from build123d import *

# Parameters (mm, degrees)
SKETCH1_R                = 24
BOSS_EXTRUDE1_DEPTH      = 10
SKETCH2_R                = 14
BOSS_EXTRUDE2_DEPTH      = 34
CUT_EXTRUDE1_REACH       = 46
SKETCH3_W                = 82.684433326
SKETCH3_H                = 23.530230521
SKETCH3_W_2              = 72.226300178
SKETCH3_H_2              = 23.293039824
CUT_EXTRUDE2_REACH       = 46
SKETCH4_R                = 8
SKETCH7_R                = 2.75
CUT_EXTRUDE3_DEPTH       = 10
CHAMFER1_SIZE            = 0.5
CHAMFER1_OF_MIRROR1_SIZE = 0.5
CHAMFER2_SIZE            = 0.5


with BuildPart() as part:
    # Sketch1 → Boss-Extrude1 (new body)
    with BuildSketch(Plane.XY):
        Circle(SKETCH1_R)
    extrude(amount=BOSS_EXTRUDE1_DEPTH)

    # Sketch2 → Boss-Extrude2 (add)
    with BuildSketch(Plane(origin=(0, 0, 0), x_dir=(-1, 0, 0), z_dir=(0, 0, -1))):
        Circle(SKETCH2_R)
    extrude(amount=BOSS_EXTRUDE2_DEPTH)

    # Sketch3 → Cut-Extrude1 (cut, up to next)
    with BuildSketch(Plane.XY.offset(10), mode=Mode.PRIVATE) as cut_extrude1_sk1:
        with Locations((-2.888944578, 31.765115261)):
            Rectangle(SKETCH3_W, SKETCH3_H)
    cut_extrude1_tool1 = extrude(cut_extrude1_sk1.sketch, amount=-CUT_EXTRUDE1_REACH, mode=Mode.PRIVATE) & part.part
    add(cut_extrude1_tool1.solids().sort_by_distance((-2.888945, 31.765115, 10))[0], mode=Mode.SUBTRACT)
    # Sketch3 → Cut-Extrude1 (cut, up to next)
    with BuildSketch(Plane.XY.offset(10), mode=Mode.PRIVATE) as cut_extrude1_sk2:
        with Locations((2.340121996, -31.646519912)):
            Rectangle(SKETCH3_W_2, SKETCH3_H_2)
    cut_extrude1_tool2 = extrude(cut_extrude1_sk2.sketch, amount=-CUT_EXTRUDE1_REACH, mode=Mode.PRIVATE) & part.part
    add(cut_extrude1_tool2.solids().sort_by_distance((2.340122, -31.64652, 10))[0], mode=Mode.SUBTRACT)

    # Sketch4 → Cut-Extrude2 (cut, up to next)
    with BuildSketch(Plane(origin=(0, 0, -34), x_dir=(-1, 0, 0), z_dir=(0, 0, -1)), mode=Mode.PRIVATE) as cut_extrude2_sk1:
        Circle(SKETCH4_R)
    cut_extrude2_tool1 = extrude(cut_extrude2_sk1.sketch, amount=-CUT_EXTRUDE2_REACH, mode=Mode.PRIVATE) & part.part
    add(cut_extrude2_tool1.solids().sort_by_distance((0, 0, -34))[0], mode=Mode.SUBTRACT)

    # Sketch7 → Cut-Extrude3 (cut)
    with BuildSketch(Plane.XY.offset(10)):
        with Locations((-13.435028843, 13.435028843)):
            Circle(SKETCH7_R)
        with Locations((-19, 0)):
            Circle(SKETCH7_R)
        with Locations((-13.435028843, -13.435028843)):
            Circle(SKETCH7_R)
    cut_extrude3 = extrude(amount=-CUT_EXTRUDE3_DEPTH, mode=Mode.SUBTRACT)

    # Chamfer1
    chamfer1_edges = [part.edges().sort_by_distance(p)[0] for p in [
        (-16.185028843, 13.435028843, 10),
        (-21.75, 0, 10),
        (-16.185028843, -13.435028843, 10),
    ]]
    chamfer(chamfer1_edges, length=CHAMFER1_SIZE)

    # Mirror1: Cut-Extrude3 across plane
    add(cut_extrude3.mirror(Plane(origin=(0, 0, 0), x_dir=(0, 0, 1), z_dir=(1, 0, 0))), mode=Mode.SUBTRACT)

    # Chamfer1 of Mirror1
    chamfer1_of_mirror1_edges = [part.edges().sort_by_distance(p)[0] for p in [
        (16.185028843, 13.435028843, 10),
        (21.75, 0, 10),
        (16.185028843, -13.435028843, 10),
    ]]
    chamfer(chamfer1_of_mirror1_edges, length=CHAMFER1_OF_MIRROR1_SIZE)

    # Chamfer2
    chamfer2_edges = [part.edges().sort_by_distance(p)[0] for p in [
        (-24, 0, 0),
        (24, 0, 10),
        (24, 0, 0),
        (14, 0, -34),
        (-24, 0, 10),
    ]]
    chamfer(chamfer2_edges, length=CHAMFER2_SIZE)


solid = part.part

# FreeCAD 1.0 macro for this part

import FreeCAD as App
import Part
import Sketcher


def edges_at(feature, points):
    """Names of the edges that pass closest to the given points."""
    edges = feature.Shape.Edges
    near = lambda p: min(range(len(edges)), key=lambda i: edges[i].distToShape(Part.Vertex(*p))[0])
    return sorted({f"Edge{near(p) + 1}" for p in points})


def add_polygon(sketch, points):
    """Adds a closed chain of lines whose ends are joined by coincident constraints."""
    first, n = sketch.GeometryCount, len(points)
    for a, b in zip(points, points[1:] + points[:1]):
        sketch.addGeometry(Part.LineSegment(App.Vector(*a, 0), App.Vector(*b, 0)), False)
    for i in range(n):
        sketch.addConstraint(Sketcher.Constraint("Coincident", first + i, 2, first + (i + 1) % n, 1))

doc = App.newDocument("Part")
body = doc.addObject("PartDesign::Body", "Body")

sketch1 = body.newObject("Sketcher::SketchObject", "Sketch")
sketch1.AttachmentSupport = (doc.getObject("XY_Plane"), [""])
sketch1.MapMode = "FlatFace"
sketch1.addGeometry(Part.Circle(App.Vector(0, 0, 0), App.Vector(0, 0, 1), 24), False)
sketch1.addConstraint([
    Sketcher.Constraint("Coincident", 0, 3, -1, 1),
    Sketcher.Constraint("Diameter", 0, 48.0),
])
pad1 = body.newObject("PartDesign::Pad", "Pad")
pad1.Profile = sketch1
pad1.Length = 10

sketch2 = body.newObject("Sketcher::SketchObject", "Sketch001")
sketch2.AttachmentSupport = (doc.getObject("XY_Plane"), [""])
sketch2.MapMode = "FlatFace"
sketch2.addGeometry(Part.Circle(App.Vector(0, 0, 0), App.Vector(0, 0, 1), 14), False)
sketch2.addConstraint([
    Sketcher.Constraint("Coincident", 0, 3, -1, 1),
    Sketcher.Constraint("Diameter", 0, 28.0),
])
pad2 = body.newObject("PartDesign::Pad", "Pad001")
pad2.Profile = sketch2
pad2.Length = 34
pad2.Reversed = True

sketch3 = body.newObject("Sketcher::SketchObject", "Sketch002")
sketch3.AttachmentSupport = (doc.getObject("XY_Plane"), [""])
sketch3.MapMode = "FlatFace"
sketch3.AttachmentOffset = App.Placement(App.Vector(0, 0, 10), App.Rotation())
add_polygon(sketch3, [(-44, 44), (-44, 20), (38, 20), (38, 44)])
sketch3.addConstraint([
    Sketcher.Constraint("Vertical", 0),
    Sketcher.Constraint("Horizontal", 1),
    Sketcher.Constraint("Vertical", 2),
    Sketcher.Constraint("Horizontal", 3),
    Sketcher.Constraint("DistanceY", -1, 1, 0, 2, 20.0),
    Sketcher.Constraint("DistanceY", 0, 2, 0, 1, 23.530231),
    Sketcher.Constraint("DistanceX", 1, 1, 1, 2, 82.684433),
    Sketcher.Constraint("DistanceX", 0, 2, -1, 1, 44.231161),
])
pocket1 = body.newObject("PartDesign::Pocket", "Pocket")
pocket1.Profile = sketch3
pocket1.Length = 10

sketch4 = body.newObject("Sketcher::SketchObject", "Sketch003")
sketch4.AttachmentSupport = (doc.getObject("XY_Plane"), [""])
sketch4.MapMode = "FlatFace"
sketch4.AttachmentOffset = App.Placement(App.Vector(0, 0, 10), App.Rotation())
add_polygon(sketch4, [(-34, -20), (-34, -43), (38, -43), (38, -20)])
sketch4.addConstraint([
    Sketcher.Constraint("Vertical", 0),
    Sketcher.Constraint("Horizontal", 1),
    Sketcher.Constraint("Vertical", 2),
    Sketcher.Constraint("Horizontal", 3),
    Sketcher.Constraint("DistanceY", 2, 2, -1, 1, 20.0),
    Sketcher.Constraint("DistanceX", 1, 1, 1, 2, 72.2263),
    Sketcher.Constraint("DistanceY", 0, 2, 0, 1, 23.29304),
    Sketcher.Constraint("DistanceX", 0, 2, -1, 1, 33.773028),
])
pocket2 = body.newObject("PartDesign::Pocket", "Pocket001")
pocket2.Profile = sketch4
pocket2.Length = 10

sketch5 = body.newObject("Sketcher::SketchObject", "Sketch004")
sketch5.AttachmentSupport = (doc.getObject("XY_Plane"), [""])
sketch5.MapMode = "FlatFace"
sketch5.AttachmentOffset = App.Placement(App.Vector(0, 0, -34), App.Rotation())
sketch5.addGeometry(Part.Circle(App.Vector(0, 0, 0), App.Vector(0, 0, 1), 8), False)
sketch5.addConstraint([
    Sketcher.Constraint("Coincident", 0, 3, -1, 1),
    Sketcher.Constraint("Diameter", 0, 16.0),
])
pocket3 = body.newObject("PartDesign::Pocket", "Pocket002")
pocket3.Profile = sketch5
pocket3.Type = "UpToFirst"
pocket3.Reversed = True

sketch6 = body.newObject("Sketcher::SketchObject", "Sketch005")
sketch6.AttachmentSupport = (doc.getObject("XY_Plane"), [""])
sketch6.MapMode = "FlatFace"
sketch6.AttachmentOffset = App.Placement(App.Vector(0, 0, 10), App.Rotation())
sketch6.addGeometry([
    Part.Circle(App.Vector(-13.4, 13.4, 0), App.Vector(0, 0, 1), 2.8),
    Part.Circle(App.Vector(-19, 0, 0), App.Vector(0, 0, 1), 2.8),
    Part.Circle(App.Vector(-13.4, -13.4, 0), App.Vector(0, 0, 1), 2.8),
], False)
sketch6.addConstraint([
    Sketcher.Constraint("Equal", 0, 1),
    Sketcher.Constraint("Equal", 1, 2),
    Sketcher.Constraint("Symmetric", 0, 3, 2, 3, -1),
    Sketcher.Constraint("PointOnObject", 1, 3, -1),
    Sketcher.Constraint("Diameter", 0, 5.5),
    Sketcher.Constraint("DistanceX", 1, 3, -1, 1, 19.0),
    Sketcher.Constraint("DistanceX", 0, 3, -1, 1, 13.435029),
    Sketcher.Constraint("DistanceY", -1, 1, 0, 3, 13.435029),
])
pocket4 = body.newObject("PartDesign::Pocket", "Pocket003")
pocket4.Profile = sketch6
pocket4.Length = 10
doc.recompute()

chamfer = body.newObject("PartDesign::Chamfer", "Chamfer")
chamfer.Base = (pocket4, edges_at(pocket4, [(-16.185, 13.435, 10), (-21.75, 0, 10), (-16.185, -13.435, 10)]))
chamfer.Size = 0.5
doc.recompute()

mirrored = body.newObject("PartDesign::Mirrored", "Mirrored")
mirrored.Originals = [pocket4]
mirrored.MirrorPlane = (doc.getObject("YZ_Plane"), [""])
body.Tip = mirrored
doc.recompute()

chamfer2 = body.newObject("PartDesign::Chamfer", "Chamfer001")
chamfer2.Base = (mirrored, edges_at(mirrored, [(16.185, 13.435, 10), (21.75, 0, 10), (16.185, -13.435, 10)]))
chamfer2.Size = 0.5
doc.recompute()

chamfer3 = body.newObject("PartDesign::Chamfer", "Chamfer002")
chamfer3.Base = (chamfer2, edges_at(chamfer2, [
    (-24, 0, 0),
    (24, 0, 10),
    (24, 0, 0),
    (14, 0, -34),
    (-24, 0, 10),
]))
chamfer3.Size = 0.5

doc.recompute()
